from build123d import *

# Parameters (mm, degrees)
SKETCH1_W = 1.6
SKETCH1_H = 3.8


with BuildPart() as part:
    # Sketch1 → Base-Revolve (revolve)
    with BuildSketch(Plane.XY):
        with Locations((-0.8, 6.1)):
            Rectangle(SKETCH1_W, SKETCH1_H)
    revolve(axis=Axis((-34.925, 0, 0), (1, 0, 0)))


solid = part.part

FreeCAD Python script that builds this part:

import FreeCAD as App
import Part
import Sketcher
from FreeCAD import Vector
Q = App.Units.Quantity

doc = App.newDocument("Part")
params = doc.addObject("Spreadsheet::Sheet", "Params")
for row, (alias, value) in enumerate([
    ("sketch1_width", "1.6 mm"),
    ("sketch1_height", "3.8 mm"),
    ("revolution_angle", "360 deg"),
], start=1):
    params.set(f"A{row}", alias)
    params.set(f"B{row}", "=" + value)
    params.setAlias(f"B{row}", alias)

body = doc.addObject("PartDesign::Body", "Body")

# Sketch on XY plane
sketch1 = body.newObject("Sketcher::SketchObject", "Sketch")
sketch1.AttachmentSupport = (doc.getObject("XY_Plane"), [""])
sketch1.MapMode = "FlatFace"
sketch1.addGeometry(Part.LineSegment(Vector(-1.6, 8, 0), Vector(-1.6, 4.2, 0)), False)
sketch1.addGeometry(Part.LineSegment(Vector(-1.6, 4.2, 0), Vector(0, 4.2, 0)), False)
sketch1.addGeometry(Part.LineSegment(Vector(0, 4.2, 0), Vector(0, 8, 0)), False)
sketch1.addGeometry(Part.LineSegment(Vector(0, 8, 0), Vector(-1.6, 8, 0)), False)
sketch1.addConstraint(Sketcher.Constraint("Coincident", 0, 2, 1, 1))
sketch1.addConstraint(Sketcher.Constraint("Coincident", 1, 2, 2, 1))
sketch1.addConstraint(Sketcher.Constraint("Coincident", 2, 2, 3, 1))
sketch1.addConstraint(Sketcher.Constraint("Coincident", 3, 2, 0, 1))
sketch1.addConstraint(Sketcher.Constraint("Vertical", 0))
sketch1.addConstraint(Sketcher.Constraint("Horizontal", 1))
sketch1.addConstraint(Sketcher.Constraint("Vertical", 2))
sketch1.addConstraint(Sketcher.Constraint("Horizontal", 3))
sketch1.addConstraint(Sketcher.Constraint("PointOnObject", 1, 2, -2))
sketch1.addConstraint(Sketcher.Constraint("DistanceX", 1, 1, 1, 2, Q("1.6 mm")))
sketch1.addConstraint(Sketcher.Constraint("DistanceY", 0, 2, 0, 1, Q("3.8 mm")))
sketch1.addConstraint(Sketcher.Constraint("DistanceY", -1, 1, 2, 2, Q("8 mm")))
sketch1.setExpression("Constraints[9]", "Params.sketch1_width")
sketch1.setExpression("Constraints[10]", "Params.sketch1_height")
revolution = body.newObject("PartDesign::Revolution", "Revolution")
revolution.Profile = sketch1
revolution.ReferenceAxis = (sketch1, ["H_Axis"])
revolution.setExpression("Angle", "Params.revolution_angle")

doc.recompute()
